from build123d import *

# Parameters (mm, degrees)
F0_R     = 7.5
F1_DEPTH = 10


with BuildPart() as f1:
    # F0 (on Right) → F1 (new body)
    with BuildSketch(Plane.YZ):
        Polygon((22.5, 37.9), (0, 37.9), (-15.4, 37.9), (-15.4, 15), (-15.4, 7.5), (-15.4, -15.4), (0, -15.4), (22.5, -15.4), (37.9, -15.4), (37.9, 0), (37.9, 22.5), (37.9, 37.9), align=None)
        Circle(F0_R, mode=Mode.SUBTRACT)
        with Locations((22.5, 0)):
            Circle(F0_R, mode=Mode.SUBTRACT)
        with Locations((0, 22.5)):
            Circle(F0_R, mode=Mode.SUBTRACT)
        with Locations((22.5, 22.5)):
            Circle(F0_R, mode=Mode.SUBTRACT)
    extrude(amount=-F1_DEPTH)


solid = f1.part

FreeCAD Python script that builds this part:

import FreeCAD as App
import Part
import Sketcher
Q = App.Units.Quantity

doc = App.newDocument("Part")
body = doc.addObject("PartDesign::Body", "Body")

# Sketch on YZ plane
sketch1 = body.newObject("Sketcher::SketchObject", "Sketch")
sketch1.AttachmentSupport = (doc.getObject("YZ_Plane"), [""])
sketch1.MapMode = "FlatFace"
sketch1.addGeometry([
    Part.LineSegment(App.Vector(-15, 38, 0), App.Vector(-15, -15, 0)),  # 0
    Part.LineSegment(App.Vector(-15, -15, 0), App.Vector(38, -15, 0)),  # 1
    Part.LineSegment(App.Vector(38, -15, 0), App.Vector(38, 38, 0)),  # 2
    Part.LineSegment(App.Vector(38, 38, 0), App.Vector(-15, 38, 0)),  # 3
    Part.Circle(App.Vector(0, 0, 0), App.Vector(0, 0, 1), 8),  # 4
    Part.Circle(App.Vector(22, 0, 0), App.Vector(0, 0, 1), 8),  # 5
    Part.Circle(App.Vector(0, 22, 0), App.Vector(0, 0, 1), 8),  # 6
    Part.Circle(App.Vector(22, 22, 0), App.Vector(0, 0, 1), 8),  # 7
], False)
sketch1.addConstraint([
    Sketcher.Constraint("Coincident", 0, 2, 1, 1),
    Sketcher.Constraint("Coincident", 1, 2, 2, 1),
    Sketcher.Constraint("Coincident", 2, 2, 3, 1),
    Sketcher.Constraint("Coincident", 3, 2, 0, 1),
    Sketcher.Constraint("Vertical", 0),
    Sketcher.Constraint("Horizontal", 1),
    Sketcher.Constraint("Vertical", 2),
    Sketcher.Constraint("Horizontal", 3),
    Sketcher.Constraint("Coincident", 4, 3, -1, 1),
    Sketcher.Constraint("Equal", 4, 5),
    Sketcher.Constraint("Equal", 5, 6),
    Sketcher.Constraint("Equal", 6, 7),
    Sketcher.Constraint("PointOnObject", 5, 3, -1),
    Sketcher.Constraint("PointOnObject", 6, 3, -2),
    Sketcher.Constraint("Horizontal", 6, 3, 7, 3),
    Sketcher.Constraint("Vertical", 5, 3, 7, 3),
    Sketcher.Constraint("Equal", 3, 0),
    Sketcher.Constraint("Diameter", 4, Q("15 mm")),
    Sketcher.Constraint("DistanceX", 1, 1, 1, 2, Q("53.3 mm")),
    Sketcher.Constraint("DistanceX", -1, 1, 5, 3, Q("22.5 mm")),
    Sketcher.Constraint("DistanceY", -1, 1, 6, 3, Q("22.5 mm")),
    Sketcher.Constraint("DistanceX", 0, 2, -1, 1, Q("15.4 mm")),
    Sketcher.Constraint("DistanceY", 0, 2, -1, 1, Q("15.4 mm")),
])
pad1 = body.newObject("PartDesign::Pad", "Pad")
pad1.Profile = sketch1
pad1.Length = 10
pad1.Reversed = True

doc.recompute()
